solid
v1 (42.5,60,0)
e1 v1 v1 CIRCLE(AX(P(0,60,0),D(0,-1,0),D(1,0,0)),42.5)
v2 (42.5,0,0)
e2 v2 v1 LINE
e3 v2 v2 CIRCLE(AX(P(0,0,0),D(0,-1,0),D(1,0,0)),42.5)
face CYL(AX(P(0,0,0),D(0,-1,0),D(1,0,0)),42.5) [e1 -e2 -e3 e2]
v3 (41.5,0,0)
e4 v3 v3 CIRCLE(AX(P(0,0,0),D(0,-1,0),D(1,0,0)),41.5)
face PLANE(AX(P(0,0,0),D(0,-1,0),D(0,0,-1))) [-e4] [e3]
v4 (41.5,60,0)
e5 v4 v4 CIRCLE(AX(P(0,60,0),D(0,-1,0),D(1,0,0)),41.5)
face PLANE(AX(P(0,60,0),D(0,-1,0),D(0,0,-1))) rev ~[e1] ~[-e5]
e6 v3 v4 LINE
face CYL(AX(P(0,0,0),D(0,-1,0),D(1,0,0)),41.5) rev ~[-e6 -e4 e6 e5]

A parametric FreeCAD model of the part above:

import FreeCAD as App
import Part
import Sketcher

V = App.Vector

doc = App.newDocument("Part")
body = doc.addObject("PartDesign::Body", "Body")

sketch1 = body.newObject("Sketcher::SketchObject", "Sketch")
sketch1.AttachmentSupport = (doc.getObject("XZ_Plane"), [""])
sketch1.MapMode = "FlatFace"
sketch1.addGeometry([
    Part.Circle(V(0, 0, 0), V(0, 0, 1), 42),
    Part.Circle(V(0, 0, 0), V(0, 0, 1), 42),
], False)
sketch1.addConstraint([
    Sketcher.Constraint("Coincident", 0, 3, -1, 1),
    Sketcher.Constraint("Coincident", 1, 3, -1, 1),
    Sketcher.Constraint("Diameter", 0, 85.0),
    Sketcher.Constraint("Diameter", 1, 83.0),
])
pad1 = body.newObject("PartDesign::Pad", "Pad")
pad1.Profile = sketch1
pad1.Length = 60
pad1.Reversed = True

doc.recompute()
